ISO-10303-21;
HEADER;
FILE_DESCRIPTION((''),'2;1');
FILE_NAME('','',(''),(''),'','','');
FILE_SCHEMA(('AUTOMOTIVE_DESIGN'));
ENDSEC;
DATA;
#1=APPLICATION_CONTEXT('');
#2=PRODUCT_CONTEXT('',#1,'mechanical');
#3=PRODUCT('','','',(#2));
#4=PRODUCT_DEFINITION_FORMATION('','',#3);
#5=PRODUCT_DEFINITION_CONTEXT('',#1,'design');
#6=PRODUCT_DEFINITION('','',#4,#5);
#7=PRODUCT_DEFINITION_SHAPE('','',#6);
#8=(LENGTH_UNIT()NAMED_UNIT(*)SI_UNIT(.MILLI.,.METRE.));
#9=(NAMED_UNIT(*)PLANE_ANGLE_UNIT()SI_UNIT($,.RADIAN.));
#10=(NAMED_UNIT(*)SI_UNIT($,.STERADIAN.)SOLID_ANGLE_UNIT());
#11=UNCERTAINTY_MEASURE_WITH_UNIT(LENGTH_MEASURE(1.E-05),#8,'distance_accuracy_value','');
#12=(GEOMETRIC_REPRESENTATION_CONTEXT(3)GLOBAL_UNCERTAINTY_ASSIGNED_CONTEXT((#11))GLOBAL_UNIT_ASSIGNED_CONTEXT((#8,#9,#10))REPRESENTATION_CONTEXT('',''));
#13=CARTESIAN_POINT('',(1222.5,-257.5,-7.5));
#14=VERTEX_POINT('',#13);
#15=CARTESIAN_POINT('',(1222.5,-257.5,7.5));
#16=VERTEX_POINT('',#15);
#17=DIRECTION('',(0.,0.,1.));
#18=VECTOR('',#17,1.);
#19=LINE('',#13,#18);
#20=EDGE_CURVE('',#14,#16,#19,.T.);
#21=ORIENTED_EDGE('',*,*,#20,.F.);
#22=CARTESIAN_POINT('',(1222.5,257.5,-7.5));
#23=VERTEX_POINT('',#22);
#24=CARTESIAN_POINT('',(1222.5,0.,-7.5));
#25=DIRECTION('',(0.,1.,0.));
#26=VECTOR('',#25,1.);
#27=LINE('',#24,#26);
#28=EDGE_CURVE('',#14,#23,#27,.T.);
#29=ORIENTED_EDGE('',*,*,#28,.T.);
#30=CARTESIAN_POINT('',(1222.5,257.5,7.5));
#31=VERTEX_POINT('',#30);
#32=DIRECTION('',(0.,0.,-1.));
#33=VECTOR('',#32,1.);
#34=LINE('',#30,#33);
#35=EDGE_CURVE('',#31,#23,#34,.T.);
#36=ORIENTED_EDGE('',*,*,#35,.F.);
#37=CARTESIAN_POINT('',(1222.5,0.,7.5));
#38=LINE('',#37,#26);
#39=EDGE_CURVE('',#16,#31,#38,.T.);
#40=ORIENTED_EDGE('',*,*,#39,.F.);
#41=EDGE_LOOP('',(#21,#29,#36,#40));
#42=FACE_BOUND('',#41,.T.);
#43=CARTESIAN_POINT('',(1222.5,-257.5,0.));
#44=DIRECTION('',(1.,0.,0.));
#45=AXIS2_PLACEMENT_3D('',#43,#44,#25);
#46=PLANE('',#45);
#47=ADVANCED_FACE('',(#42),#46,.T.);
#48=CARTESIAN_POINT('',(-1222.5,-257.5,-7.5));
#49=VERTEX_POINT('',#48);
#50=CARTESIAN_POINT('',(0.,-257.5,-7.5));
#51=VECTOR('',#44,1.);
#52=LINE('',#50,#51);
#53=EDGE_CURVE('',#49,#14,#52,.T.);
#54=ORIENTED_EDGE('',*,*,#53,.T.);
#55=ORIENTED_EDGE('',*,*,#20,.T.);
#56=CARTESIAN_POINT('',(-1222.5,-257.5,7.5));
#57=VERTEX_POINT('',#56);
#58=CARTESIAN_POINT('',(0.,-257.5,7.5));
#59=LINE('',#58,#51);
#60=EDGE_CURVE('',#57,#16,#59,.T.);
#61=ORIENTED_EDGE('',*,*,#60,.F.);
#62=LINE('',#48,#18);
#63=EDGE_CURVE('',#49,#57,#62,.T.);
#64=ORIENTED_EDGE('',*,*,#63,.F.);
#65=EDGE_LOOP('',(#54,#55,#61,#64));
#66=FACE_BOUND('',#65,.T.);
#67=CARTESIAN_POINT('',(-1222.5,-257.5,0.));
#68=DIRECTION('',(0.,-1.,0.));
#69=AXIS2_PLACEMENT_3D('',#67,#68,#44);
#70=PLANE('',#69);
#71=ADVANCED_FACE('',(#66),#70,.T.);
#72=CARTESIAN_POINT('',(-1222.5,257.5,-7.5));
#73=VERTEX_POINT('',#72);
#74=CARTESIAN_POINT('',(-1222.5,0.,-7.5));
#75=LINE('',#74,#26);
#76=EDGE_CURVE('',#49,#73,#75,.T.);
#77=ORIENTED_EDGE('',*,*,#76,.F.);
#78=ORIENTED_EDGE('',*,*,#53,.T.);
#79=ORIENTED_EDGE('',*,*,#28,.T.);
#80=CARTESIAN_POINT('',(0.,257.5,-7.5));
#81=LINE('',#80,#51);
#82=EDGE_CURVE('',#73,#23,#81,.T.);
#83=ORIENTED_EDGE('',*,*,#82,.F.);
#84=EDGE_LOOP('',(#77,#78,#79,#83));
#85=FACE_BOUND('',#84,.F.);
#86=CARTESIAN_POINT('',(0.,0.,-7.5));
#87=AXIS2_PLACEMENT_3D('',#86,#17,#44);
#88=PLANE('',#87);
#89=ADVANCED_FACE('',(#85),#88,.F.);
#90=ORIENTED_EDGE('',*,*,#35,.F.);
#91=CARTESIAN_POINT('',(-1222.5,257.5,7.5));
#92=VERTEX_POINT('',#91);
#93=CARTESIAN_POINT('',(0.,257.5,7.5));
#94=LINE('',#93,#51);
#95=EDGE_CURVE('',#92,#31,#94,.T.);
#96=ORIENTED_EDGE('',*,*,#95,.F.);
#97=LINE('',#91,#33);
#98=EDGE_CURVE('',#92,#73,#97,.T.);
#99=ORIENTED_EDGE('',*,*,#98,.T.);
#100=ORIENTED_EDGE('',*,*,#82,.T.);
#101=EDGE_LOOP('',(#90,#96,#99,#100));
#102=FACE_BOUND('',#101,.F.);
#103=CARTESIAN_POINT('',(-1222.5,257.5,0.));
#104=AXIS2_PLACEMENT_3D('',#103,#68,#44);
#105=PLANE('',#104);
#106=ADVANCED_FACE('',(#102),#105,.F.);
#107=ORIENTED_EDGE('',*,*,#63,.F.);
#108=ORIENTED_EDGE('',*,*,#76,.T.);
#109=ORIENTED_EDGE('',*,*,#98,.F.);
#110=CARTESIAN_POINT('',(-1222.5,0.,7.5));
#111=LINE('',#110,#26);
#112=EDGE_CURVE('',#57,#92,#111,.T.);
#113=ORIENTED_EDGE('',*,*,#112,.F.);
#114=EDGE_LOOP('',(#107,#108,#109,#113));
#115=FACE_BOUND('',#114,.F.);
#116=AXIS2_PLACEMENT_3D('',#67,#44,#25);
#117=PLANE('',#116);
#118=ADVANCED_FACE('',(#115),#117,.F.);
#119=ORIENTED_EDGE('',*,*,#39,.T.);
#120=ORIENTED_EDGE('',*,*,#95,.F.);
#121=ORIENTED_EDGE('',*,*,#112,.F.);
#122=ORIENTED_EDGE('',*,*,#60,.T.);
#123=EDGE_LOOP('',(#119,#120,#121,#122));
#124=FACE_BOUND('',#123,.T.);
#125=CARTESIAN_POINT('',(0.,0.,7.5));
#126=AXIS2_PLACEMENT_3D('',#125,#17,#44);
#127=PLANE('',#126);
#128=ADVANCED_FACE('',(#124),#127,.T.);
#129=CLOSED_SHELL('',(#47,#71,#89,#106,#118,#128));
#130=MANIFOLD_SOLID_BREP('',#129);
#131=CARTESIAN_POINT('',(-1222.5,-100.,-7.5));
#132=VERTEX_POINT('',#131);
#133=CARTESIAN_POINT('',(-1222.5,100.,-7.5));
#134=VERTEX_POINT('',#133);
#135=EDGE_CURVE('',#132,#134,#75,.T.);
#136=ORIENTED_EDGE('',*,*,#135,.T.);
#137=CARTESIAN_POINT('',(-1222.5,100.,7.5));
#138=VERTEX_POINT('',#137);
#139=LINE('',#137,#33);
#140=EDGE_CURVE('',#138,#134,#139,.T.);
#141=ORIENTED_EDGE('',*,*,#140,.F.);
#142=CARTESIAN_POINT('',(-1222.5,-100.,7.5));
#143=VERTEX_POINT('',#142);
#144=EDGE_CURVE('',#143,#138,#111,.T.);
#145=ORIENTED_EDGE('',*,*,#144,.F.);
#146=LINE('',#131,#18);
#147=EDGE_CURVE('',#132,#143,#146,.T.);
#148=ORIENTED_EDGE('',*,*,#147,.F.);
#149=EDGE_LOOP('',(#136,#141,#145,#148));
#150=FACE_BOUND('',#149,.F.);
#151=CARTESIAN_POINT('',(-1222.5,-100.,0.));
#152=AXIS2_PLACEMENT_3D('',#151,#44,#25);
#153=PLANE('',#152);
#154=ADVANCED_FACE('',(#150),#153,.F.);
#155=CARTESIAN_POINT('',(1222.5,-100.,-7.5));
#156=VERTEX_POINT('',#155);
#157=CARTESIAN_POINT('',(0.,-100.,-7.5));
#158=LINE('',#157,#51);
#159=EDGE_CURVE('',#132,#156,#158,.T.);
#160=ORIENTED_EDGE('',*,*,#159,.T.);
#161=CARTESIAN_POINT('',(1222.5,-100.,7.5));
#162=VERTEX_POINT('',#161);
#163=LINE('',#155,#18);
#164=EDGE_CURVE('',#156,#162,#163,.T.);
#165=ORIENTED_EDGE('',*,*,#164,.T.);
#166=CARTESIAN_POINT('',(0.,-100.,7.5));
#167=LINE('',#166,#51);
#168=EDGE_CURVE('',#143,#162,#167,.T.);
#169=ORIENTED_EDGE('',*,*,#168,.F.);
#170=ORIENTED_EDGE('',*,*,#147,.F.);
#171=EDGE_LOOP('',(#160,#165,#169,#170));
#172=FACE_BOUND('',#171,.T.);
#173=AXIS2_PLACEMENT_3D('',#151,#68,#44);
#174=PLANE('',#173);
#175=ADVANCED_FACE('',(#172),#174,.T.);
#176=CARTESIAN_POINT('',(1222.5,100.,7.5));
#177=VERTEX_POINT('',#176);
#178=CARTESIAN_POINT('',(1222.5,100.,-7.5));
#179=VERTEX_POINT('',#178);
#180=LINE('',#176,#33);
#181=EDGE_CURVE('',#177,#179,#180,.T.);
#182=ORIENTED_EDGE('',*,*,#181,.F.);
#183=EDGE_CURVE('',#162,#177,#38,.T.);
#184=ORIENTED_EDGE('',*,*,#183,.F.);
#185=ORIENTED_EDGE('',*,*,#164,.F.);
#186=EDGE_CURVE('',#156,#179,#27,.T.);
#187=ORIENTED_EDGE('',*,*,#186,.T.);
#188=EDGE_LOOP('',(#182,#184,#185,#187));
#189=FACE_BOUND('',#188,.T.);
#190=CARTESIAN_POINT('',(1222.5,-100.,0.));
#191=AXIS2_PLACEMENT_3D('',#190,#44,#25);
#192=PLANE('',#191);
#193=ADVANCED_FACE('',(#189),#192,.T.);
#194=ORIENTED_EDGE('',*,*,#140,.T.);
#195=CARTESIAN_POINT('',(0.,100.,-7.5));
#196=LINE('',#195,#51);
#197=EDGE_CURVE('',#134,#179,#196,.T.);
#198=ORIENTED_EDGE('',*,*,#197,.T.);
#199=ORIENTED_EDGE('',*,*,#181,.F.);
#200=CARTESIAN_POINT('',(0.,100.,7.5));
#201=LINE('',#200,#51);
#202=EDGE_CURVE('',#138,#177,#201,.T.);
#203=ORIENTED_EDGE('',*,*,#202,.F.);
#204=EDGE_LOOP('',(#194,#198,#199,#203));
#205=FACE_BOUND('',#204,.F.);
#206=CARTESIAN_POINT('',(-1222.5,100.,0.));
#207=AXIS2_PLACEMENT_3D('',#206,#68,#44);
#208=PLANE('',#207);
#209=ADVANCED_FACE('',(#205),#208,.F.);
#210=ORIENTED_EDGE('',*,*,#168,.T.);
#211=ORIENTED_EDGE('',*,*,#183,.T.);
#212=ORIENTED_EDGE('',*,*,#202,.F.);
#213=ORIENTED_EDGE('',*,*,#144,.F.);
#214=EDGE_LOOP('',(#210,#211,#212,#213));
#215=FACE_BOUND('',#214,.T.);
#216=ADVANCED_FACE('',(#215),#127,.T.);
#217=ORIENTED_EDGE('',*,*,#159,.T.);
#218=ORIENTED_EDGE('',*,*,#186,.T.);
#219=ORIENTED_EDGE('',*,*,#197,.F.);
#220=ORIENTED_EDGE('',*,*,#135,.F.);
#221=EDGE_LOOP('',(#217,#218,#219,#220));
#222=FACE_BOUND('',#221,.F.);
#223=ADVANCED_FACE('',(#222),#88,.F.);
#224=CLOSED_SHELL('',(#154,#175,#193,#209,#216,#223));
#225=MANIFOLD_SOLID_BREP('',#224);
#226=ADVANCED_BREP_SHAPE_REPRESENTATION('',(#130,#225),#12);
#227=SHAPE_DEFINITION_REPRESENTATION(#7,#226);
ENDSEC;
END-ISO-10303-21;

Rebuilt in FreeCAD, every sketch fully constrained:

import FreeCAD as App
import Part
import Sketcher
Q = App.Units.Quantity

doc = App.newDocument("Part")
body = doc.addObject("PartDesign::Body", "Body")

sketch1 = body.newObject("Sketcher::SketchObject", "Sketch")
sketch1.AttachmentSupport = (doc.getObject("XY_Plane"), [""])
sketch1.MapMode = "FlatFace"
sketch1.addGeometry([
    Part.LineSegment(App.Vector(-1222, 258, 0), App.Vector(-1222, -258, 0)),
    Part.LineSegment(App.Vector(-1222, -258, 0), App.Vector(1222, -258, 0)),
    Part.LineSegment(App.Vector(1222, -258, 0), App.Vector(1222, 258, 0)),
    Part.LineSegment(App.Vector(1222, 258, 0), App.Vector(-1222, 258, 0)),
], False)
sketch1.addConstraint([
    Sketcher.Constraint("Coincident", 0, 2, 1, 1),
    Sketcher.Constraint("Coincident", 1, 2, 2, 1),
    Sketcher.Constraint("Coincident", 2, 2, 3, 1),
    Sketcher.Constraint("Coincident", 3, 2, 0, 1),
    Sketcher.Constraint("Vertical", 0),
    Sketcher.Constraint("Horizontal", 1),
    Sketcher.Constraint("Vertical", 2),
    Sketcher.Constraint("Horizontal", 3),
    Sketcher.Constraint("Symmetric", 0, 2, 2, 2, -1, 1),
    Sketcher.Constraint("DistanceX", 1, 1, 1, 2, Q("2445 mm")),
    Sketcher.Constraint("DistanceY", 0, 2, 0, 1, Q("515 mm")),
])
pad1 = body.newObject("PartDesign::Pad", "Pad")
pad1.Profile = sketch1
pad1.Length = 15
pad1.Midplane = True
body2 = doc.addObject("PartDesign::Body", "Body001")

sketch2 = body2.newObject("Sketcher::SketchObject", "Sketch001")
sketch2.AttachmentSupport = (doc.getObject("XY_Plane001"), [""])
sketch2.MapMode = "FlatFace"
sketch2.addGeometry([
    Part.LineSegment(App.Vector(-1222, 100, 0), App.Vector(-1222, -100, 0)),
    Part.LineSegment(App.Vector(-1222, -100, 0), App.Vector(1222, -100, 0)),
    Part.LineSegment(App.Vector(1222, -100, 0), App.Vector(1222, 100, 0)),
    Part.LineSegment(App.Vector(1222, 100, 0), App.Vector(-1222, 100, 0)),
], False)
sketch2.addConstraint([
    Sketcher.Constraint("Coincident", 0, 2, 1, 1),
    Sketcher.Constraint("Coincident", 1, 2, 2, 1),
    Sketcher.Constraint("Coincident", 2, 2, 3, 1),
    Sketcher.Constraint("Coincident", 3, 2, 0, 1),
    Sketcher.Constraint("Vertical", 0),
    Sketcher.Constraint("Horizontal", 1),
    Sketcher.Constraint("Vertical", 2),
    Sketcher.Constraint("Horizontal", 3),
    Sketcher.Constraint("Symmetric", 0, 2, 2, 2, -1, 1),
    Sketcher.Constraint("DistanceX", 1, 1, 1, 2, Q("2445 mm")),
    Sketcher.Constraint("DistanceY", 0, 2, 0, 1, Q("200 mm")),
])
pad2 = body2.newObject("PartDesign::Pad", "Pad001")
pad2.Profile = sketch2
pad2.Length = 15
pad2.Midplane = True

doc.recompute()
